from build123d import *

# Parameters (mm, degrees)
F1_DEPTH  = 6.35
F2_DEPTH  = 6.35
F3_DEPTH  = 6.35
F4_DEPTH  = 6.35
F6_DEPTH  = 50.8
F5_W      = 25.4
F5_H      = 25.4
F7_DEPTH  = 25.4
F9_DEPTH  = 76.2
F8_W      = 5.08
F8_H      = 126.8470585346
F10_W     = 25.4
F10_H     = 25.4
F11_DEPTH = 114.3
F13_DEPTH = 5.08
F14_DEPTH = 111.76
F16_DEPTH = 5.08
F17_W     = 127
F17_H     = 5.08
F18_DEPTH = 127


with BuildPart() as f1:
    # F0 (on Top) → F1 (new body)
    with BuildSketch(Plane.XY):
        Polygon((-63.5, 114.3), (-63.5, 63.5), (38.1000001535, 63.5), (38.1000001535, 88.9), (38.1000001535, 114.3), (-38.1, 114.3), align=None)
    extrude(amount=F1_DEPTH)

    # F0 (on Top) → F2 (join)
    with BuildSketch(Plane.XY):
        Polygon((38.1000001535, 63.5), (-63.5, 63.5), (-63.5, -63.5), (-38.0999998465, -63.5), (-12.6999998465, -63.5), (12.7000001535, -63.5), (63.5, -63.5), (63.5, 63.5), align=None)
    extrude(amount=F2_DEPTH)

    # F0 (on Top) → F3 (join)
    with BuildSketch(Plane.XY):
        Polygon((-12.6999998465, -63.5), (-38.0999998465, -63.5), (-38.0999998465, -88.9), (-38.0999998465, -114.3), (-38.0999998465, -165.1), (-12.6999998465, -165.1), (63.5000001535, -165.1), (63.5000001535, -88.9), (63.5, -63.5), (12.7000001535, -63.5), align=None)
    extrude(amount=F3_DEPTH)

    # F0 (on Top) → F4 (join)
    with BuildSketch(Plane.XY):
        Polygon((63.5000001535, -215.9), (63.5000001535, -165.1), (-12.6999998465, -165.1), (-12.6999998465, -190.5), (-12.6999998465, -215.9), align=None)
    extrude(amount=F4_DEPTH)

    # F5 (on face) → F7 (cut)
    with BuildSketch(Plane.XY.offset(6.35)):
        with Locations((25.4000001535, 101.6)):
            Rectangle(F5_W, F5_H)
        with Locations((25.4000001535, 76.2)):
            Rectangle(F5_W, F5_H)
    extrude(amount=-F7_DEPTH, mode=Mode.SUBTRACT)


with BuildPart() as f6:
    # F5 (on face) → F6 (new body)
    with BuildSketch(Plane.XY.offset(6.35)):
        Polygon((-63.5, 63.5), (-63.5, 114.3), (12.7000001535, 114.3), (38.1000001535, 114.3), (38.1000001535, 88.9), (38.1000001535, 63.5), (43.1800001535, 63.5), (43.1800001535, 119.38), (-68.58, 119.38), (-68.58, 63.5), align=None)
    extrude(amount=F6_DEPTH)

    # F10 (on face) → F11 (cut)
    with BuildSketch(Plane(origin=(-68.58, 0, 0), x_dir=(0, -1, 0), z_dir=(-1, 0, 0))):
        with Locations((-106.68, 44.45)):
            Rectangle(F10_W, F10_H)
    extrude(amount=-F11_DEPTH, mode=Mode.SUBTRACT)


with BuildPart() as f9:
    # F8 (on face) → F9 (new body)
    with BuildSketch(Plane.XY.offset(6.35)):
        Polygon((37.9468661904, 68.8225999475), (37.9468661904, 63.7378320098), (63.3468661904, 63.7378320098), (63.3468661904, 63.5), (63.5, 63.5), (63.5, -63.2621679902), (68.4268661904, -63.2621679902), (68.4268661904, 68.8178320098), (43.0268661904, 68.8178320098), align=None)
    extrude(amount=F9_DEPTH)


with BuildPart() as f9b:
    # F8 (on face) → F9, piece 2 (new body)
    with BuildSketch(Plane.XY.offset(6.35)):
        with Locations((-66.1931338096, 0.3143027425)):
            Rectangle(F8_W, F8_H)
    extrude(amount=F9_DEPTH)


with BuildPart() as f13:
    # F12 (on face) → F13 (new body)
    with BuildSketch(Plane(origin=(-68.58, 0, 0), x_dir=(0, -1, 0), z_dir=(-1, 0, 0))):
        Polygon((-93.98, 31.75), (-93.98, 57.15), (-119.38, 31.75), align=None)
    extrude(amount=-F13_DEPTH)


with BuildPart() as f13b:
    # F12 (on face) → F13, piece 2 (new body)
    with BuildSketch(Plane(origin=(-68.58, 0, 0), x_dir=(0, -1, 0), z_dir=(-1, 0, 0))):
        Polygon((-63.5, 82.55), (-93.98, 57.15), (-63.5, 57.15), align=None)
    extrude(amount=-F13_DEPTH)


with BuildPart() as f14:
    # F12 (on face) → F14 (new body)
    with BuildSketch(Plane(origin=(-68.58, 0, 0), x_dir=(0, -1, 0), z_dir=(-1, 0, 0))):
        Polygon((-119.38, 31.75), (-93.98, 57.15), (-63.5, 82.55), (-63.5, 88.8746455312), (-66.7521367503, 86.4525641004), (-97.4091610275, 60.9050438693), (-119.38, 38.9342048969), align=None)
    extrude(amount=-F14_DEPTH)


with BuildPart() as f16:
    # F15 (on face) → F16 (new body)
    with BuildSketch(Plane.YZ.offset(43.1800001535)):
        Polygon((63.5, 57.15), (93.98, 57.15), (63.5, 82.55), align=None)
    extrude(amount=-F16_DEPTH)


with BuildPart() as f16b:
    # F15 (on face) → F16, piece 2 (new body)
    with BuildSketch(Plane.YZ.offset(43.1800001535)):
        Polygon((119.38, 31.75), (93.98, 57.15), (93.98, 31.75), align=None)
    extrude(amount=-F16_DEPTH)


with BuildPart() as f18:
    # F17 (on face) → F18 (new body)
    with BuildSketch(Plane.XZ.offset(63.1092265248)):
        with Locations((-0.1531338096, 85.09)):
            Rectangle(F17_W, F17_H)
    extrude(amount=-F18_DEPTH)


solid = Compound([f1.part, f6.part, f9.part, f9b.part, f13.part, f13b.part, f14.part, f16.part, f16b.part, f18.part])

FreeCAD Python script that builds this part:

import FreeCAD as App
import Part
import Sketcher
from FreeCAD import Vector
Q = App.Units.Quantity

doc = App.newDocument("Part")
params = doc.addObject("Spreadsheet::Sheet", "Params")
for row, (alias, value) in enumerate([
    ("sketch1_width", "4 in"),
    ("sketch1_height", "2 in"),
    ("pad1_length", "0.25 in"),
    ("sketch2_width", "5 in"),
    ("pad2_length", "0.25 in"),
    ("sketch3_width", "4 in"),
    ("sketch3_height", "3 in"),
    ("pad3_length", "0.25 in"),
    ("sketch4_width", "3 in"),
    ("sketch4_height", "2 in"),
    ("pad4_length", "0.25 in"),
    ("sketch5_width", "1 in"),
    ("sketch5_height", "2 in"),
    ("pocket1_length", "1 in"),
    ("sketch6_width", "4 in"),
    ("sketch6_height", "2 in"),
    ("sketch6_width2", "0.2 in"),
    ("sketch6_height2", "2.2 in"),
    ("pad5_length", "2 in"),
    ("sketch7_width", "1 in"),
    ("pocket2_length", "4.5 in"),
    ("sketch8_width", "1 in"),
    ("sketch8_height", "5.2 in"),
    ("sketch8_length", "0.2000001 in"),
    ("pad6_length", "3 in"),
    ("sketch9_width", "0.2 in"),
    ("pad7_length", "3 in"),
    ("sketch10_width", "1 in"),
    ("pad8_length", "0.2 in"),
    ("sketch11_height", "1 in"),
    ("sketch11_width", "1.2 in"),
    ("pad9_length", "0.2 in"),
    ("pad10_length", "4.4 in"),
    ("sketch13_height", "1 in"),
    ("sketch13_width", "1.2 in"),
    ("pad11_length", "0.2 in"),
    ("sketch14_width", "1 in"),
    ("pad12_length", "0.2 in"),
    ("sketch15_width", "5 in"),
    ("sketch15_height", "0.2 in"),
    ("pad13_length", "5 in"),
], start=1):
    params.set(f"A{row}", alias)
    params.set(f"B{row}", "=" + value)
    params.setAlias(f"B{row}", alias)

body = doc.addObject("PartDesign::Body", "Body")

sketch1 = doc.addObject("Sketcher::SketchObject", "Sketch")
body.addObject(sketch1)
sketch1.AttachmentSupport = (doc.XY_Plane, [""])
sketch1.MapMode = "FlatFace"
sketch1.addGeometry(Part.LineSegment(Vector(-64, 114, 0), Vector(-64, 64, 0)), False)
sketch1.addGeometry(Part.LineSegment(Vector(-64, 64, 0), Vector(38, 64, 0)), False)
sketch1.addGeometry(Part.LineSegment(Vector(38, 64, 0), Vector(38, 114, 0)), False)
sketch1.addGeometry(Part.LineSegment(Vector(38, 114, 0), Vector(-64, 114, 0)), False)
sketch1.addConstraint(Sketcher.Constraint("Coincident", 0, 2, 1, 1))
sketch1.addConstraint(Sketcher.Constraint("Coincident", 1, 2, 2, 1))
sketch1.addConstraint(Sketcher.Constraint("Coincident", 2, 2, 3, 1))
sketch1.addConstraint(Sketcher.Constraint("Coincident", 3, 2, 0, 1))
sketch1.addConstraint(Sketcher.Constraint("Vertical", 0))
sketch1.addConstraint(Sketcher.Constraint("Horizontal", 1))
sketch1.addConstraint(Sketcher.Constraint("Vertical", 2))
sketch1.addConstraint(Sketcher.Constraint("Horizontal", 3))
sketch1.addConstraint(Sketcher.Constraint("DistanceX", 1, 1, 1, 2, Q("4 in")))
sketch1.addConstraint(Sketcher.Constraint("DistanceY", 0, 2, 0, 1, Q("2 in")))
sketch1.addConstraint(Sketcher.Constraint("DistanceX", 0, 2, -1, 1, Q("2.5 in")))
sketch1.addConstraint(Sketcher.Constraint("DistanceY", -1, 1, 0, 2, Q("2.5 in")))
sketch1.setExpression("Constraints[8]", "Params.sketch1_width")
sketch1.setExpression("Constraints[9]", "Params.sketch1_height")
pad1 = doc.addObject("PartDesign::Pad", "Pad")
body.addObject(pad1)
pad1.Profile = sketch1
pad1.setExpression("Length", "Params.pad1_length")

sketch2 = doc.addObject("Sketcher::SketchObject", "Sketch001")
body.addObject(sketch2)
sketch2.AttachmentSupport = (doc.XY_Plane, [""])
sketch2.MapMode = "FlatFace"
sketch2.addGeometry(Part.LineSegment(Vector(-64, 64, 0), Vector(-64, -64, 0)), False)
sketch2.addGeometry(Part.LineSegment(Vector(-64, -64, 0), Vector(64, -64, 0)), False)
sketch2.addGeometry(Part.LineSegment(Vector(64, -64, 0), Vector(64, 64, 0)), False)
sketch2.addGeometry(Part.LineSegment(Vector(64, 64, 0), Vector(-64, 64, 0)), False)
sketch2.addConstraint(Sketcher.Constraint("Coincident", 0, 2, 1, 1))
sketch2.addConstraint(Sketcher.Constraint("Coincident", 1, 2, 2, 1))
sketch2.addConstraint(Sketcher.Constraint("Coincident", 2, 2, 3, 1))
sketch2.addConstraint(Sketcher.Constraint("Coincident", 3, 2, 0, 1))
sketch2.addConstraint(Sketcher.Constraint("Vertical", 0))
sketch2.addConstraint(Sketcher.Constraint("Horizontal", 1))
sketch2.addConstraint(Sketcher.Constraint("Vertical", 2))
sketch2.addConstraint(Sketcher.Constraint("Horizontal", 3))
sketch2.addConstraint(Sketcher.Constraint("Symmetric", 0, 2, 2, 2, -1, 1))
sketch2.addConstraint(Sketcher.Constraint("Equal", 3, 0))
sketch2.addConstraint(Sketcher.Constraint("DistanceX", 1, 1, 1, 2, Q("5 in")))
sketch2.setExpression("Constraints[10]", "Params.sketch2_width")
pad2 = doc.addObject("PartDesign::Pad", "Pad001")
body.addObject(pad2)
pad2.Profile = sketch2
pad2.setExpression("Length", "Params.pad2_length")

sketch3 = doc.addObject("Sketcher::SketchObject", "Sketch002")
body.addObject(sketch3)
sketch3.AttachmentSupport = (doc.XY_Plane, [""])
sketch3.MapMode = "FlatFace"
sketch3.addGeometry(Part.LineSegment(Vector(-38, -64, 0), Vector(-38, -165, 0)), False)
sketch3.addGeometry(Part.LineSegment(Vector(-38, -165, 0), Vector(64, -165, 0)), False)
sketch3.addGeometry(Part.LineSegment(Vector(64, -165, 0), Vector(64, -89, 0)), False)
sketch3.addGeometry(Part.LineSegment(Vector(64, -89, 0), Vector(64, -64, 0)), False)
sketch3.addGeometry(Part.LineSegment(Vector(64, -64, 0), Vector(-38, -64, 0)), False)
sketch3.addConstraint(Sketcher.Constraint("Coincident", 0, 2, 1, 1))
sketch3.addConstraint(Sketcher.Constraint("Coincident", 1, 2, 2, 1))
sketch3.addConstraint(Sketcher.Constraint("Coincident", 2, 2, 3, 1))
sketch3.addConstraint(Sketcher.Constraint("Coincident", 3, 2, 4, 1))
sketch3.addConstraint(Sketcher.Constraint("Coincident", 4, 2, 0, 1))
sketch3.addConstraint(Sketcher.Constraint("Vertical", 0))
sketch3.addConstraint(Sketcher.Constraint("Horizontal", 1))
sketch3.addConstraint(Sketcher.Constraint("Vertical", 2))
sketch3.addConstraint(Sketcher.Constraint("Vertical", 3))
sketch3.addConstraint(Sketcher.Constraint("Horizontal", 4))
sketch3.addConstraint(Sketcher.Constraint("Equal", 4, 0))
sketch3.addConstraint(Sketcher.Constraint("DistanceX", 1, 1, 1, 2, Q("4 in")))
sketch3.addConstraint(Sketcher.Constraint("DistanceY", 2, 1, 2, 2, Q("3 in")))
sketch3.addConstraint(Sketcher.Constraint("DistanceX", 0, 2, -1, 1, Q("1.5 in")))
sketch3.addConstraint(Sketcher.Constraint("DistanceY", 0, 2, -1, 1, Q("6.5 in")))
sketch3.setExpression("Constraints[11]", "Params.sketch3_width")
sketch3.setExpression("Constraints[12]", "Params.sketch3_height")
pad3 = doc.addObject("PartDesign::Pad", "Pad002")
body.addObject(pad3)
pad3.Profile = sketch3
pad3.setExpression("Length", "Params.pad3_length")

sketch4 = doc.addObject("Sketcher::SketchObject", "Sketch003")
body.addObject(sketch4)
sketch4.AttachmentSupport = (doc.XY_Plane, [""])
sketch4.MapMode = "FlatFace"
sketch4.addGeometry(Part.LineSegment(Vector(64, -216, 0), Vector(64, -165, 0)), False)
sketch4.addGeometry(Part.LineSegment(Vector(64, -165, 0), Vector(-13, -165, 0)), False)
sketch4.addGeometry(Part.LineSegment(Vector(-13, -165, 0), Vector(-13, -216, 0)), False)
sketch4.addGeometry(Part.LineSegment(Vector(-13, -216, 0), Vector(64, -216, 0)), False)
sketch4.addConstraint(Sketcher.Constraint("Coincident", 0, 2, 1, 1))
sketch4.addConstraint(Sketcher.Constraint("Coincident", 1, 2, 2, 1))
sketch4.addConstraint(Sketcher.Constraint("Coincident", 2, 2, 3, 1))
sketch4.addConstraint(Sketcher.Constraint("Coincident", 3, 2, 0, 1))
sketch4.addConstraint(Sketcher.Constraint("Vertical", 0))
sketch4.addConstraint(Sketcher.Constraint("Horizontal", 1))
sketch4.addConstraint(Sketcher.Constraint("Vertical", 2))
sketch4.addConstraint(Sketcher.Constraint("Horizontal", 3))
sketch4.addConstraint(Sketcher.Constraint("DistanceX", 1, 2, 1, 1, Q("3 in")))
sketch4.addConstraint(Sketcher.Constraint("DistanceY", 0, 1, 0, 2, Q("2 in")))
sketch4.addConstraint(Sketcher.Constraint("DistanceX", -1, 1, 0, 2, Q("2.5 in")))
sketch4.addConstraint(Sketcher.Constraint("DistanceY", 0, 2, -1, 1, Q("6.5 in")))
sketch4.setExpression("Constraints[8]", "Params.sketch4_width")
sketch4.setExpression("Constraints[9]", "Params.sketch4_height")
pad4 = doc.addObject("PartDesign::Pad", "Pad003")
body.addObject(pad4)
pad4.Profile = sketch4
pad4.setExpression("Length", "Params.pad4_length")

sketch5 = doc.addObject("Sketcher::SketchObject", "Sketch004")
body.addObject(sketch5)
sketch5.AttachmentSupport = (doc.XY_Plane, [""])
sketch5.MapMode = "FlatFace"
sketch5.AttachmentOffset = App.Placement(Vector(0, 0, 0.25 * 25.4), App.Rotation())
sketch5.addGeometry(Part.LineSegment(Vector(13, 114, 0), Vector(13, 64, 0)), False)
sketch5.addGeometry(Part.LineSegment(Vector(13, 64, 0), Vector(38, 64, 0)), False)
sketch5.addGeometry(Part.LineSegment(Vector(38, 64, 0), Vector(38, 114, 0)), False)
sketch5.addGeometry(Part.LineSegment(Vector(38, 114, 0), Vector(13, 114, 0)), False)
sketch5.addConstraint(Sketcher.Constraint("Coincident", 0, 2, 1, 1))
sketch5.addConstraint(Sketcher.Constraint("Coincident", 1, 2, 2, 1))
sketch5.addConstraint(Sketcher.Constraint("Coincident", 2, 2, 3, 1))
sketch5.addConstraint(Sketcher.Constraint("Coincident", 3, 2, 0, 1))
sketch5.addConstraint(Sketcher.Constraint("Vertical", 0))
sketch5.addConstraint(Sketcher.Constraint("Horizontal", 1))
sketch5.addConstraint(Sketcher.Constraint("Vertical", 2))
sketch5.addConstraint(Sketcher.Constraint("Horizontal", 3))
sketch5.addConstraint(Sketcher.Constraint("DistanceX", 1, 1, 1, 2, Q("1 in")))
sketch5.addConstraint(Sketcher.Constraint("DistanceY", 0, 2, 0, 1, Q("2 in")))
sketch5.addConstraint(Sketcher.Constraint("DistanceX", -1, 1, 0, 2, Q("0.5 in")))
sketch5.addConstraint(Sketcher.Constraint("DistanceY", -1, 1, 0, 2, Q("2.5 in")))
sketch5.setExpression("Constraints[8]", "Params.sketch5_width")
sketch5.setExpression("Constraints[9]", "Params.sketch5_height")
pocket1 = doc.addObject("PartDesign::Pocket", "Pocket")
body.addObject(pocket1)
pocket1.Profile = sketch5
pocket1.setExpression("Length", "Params.pocket1_length")
body2 = doc.addObject("PartDesign::Body", "Body001")

sketch6 = doc.addObject("Sketcher::SketchObject", "Sketch005")
body2.addObject(sketch6)
sketch6.AttachmentSupport = (doc.getObject("XY_Plane001"), [""])
sketch6.MapMode = "FlatFace"
sketch6.AttachmentOffset = App.Placement(Vector(0, 0, 0.25 * 25.4), App.Rotation())
sketch6.addGeometry(Part.LineSegment(Vector(-64, 64, 0), Vector(-64, 114, 0)), False)
sketch6.addGeometry(Part.LineSegment(Vector(-64, 114, 0), Vector(38, 114, 0)), False)
sketch6.addGeometry(Part.LineSegment(Vector(38, 114, 0), Vector(38, 64, 0)), False)
sketch6.addGeometry(Part.LineSegment(Vector(38, 64, 0), Vector(43, 64, 0)), False)
sketch6.addGeometry(Part.LineSegment(Vector(43, 64, 0), Vector(43, 119, 0)), False)
sketch6.addGeometry(Part.LineSegment(Vector(43, 119, 0), Vector(-69, 119, 0)), False)
sketch6.addGeometry(Part.LineSegment(Vector(-69, 119, 0), Vector(-69, 64, 0)), False)
sketch6.addGeometry(Part.LineSegment(Vector(-69, 64, 0), Vector(-64, 64, 0)), False)
sketch6.addConstraint(Sketcher.Constraint("Coincident", 0, 2, 1, 1))
sketch6.addConstraint(Sketcher.Constraint("Coincident", 1, 2, 2, 1))
sketch6.addConstraint(Sketcher.Constraint("Coincident", 2, 2, 3, 1))
sketch6.addConstraint(Sketcher.Constraint("Coincident", 3, 2, 4, 1))
sketch6.addConstraint(Sketcher.Constraint("Coincident", 4, 2, 5, 1))
sketch6.addConstraint(Sketcher.Constraint("Coincident", 5, 2, 6, 1))
sketch6.addConstraint(Sketcher.Constraint("Coincident", 6, 2, 7, 1))
sketch6.addConstraint(Sketcher.Constraint("Coincident", 7, 2, 0, 1))
sketch6.addConstraint(Sketcher.Constraint("Vertical", 0))
sketch6.addConstraint(Sketcher.Constraint("Horizontal", 1))
sketch6.addConstraint(Sketcher.Constraint("Vertical", 2))
sketch6.addConstraint(Sketcher.Constraint("Horizontal", 3))
sketch6.addConstraint(Sketcher.Constraint("Vertical", 4))
sketch6.addConstraint(Sketcher.Constraint("Horizontal", 5))
sketch6.addConstraint(Sketcher.Constraint("Vertical", 6))
sketch6.addConstraint(Sketcher.Constraint("Horizontal", 7))
sketch6.addConstraint(Sketcher.Constraint("Horizontal", 3, 2, 6, 2))
sketch6.addConstraint(Sketcher.Constraint("Equal", 3, 7))
sketch6.addConstraint(Sketcher.Constraint("DistanceX", 1, 1, 1, 2, Q("4 in")))
sketch6.addConstraint(Sketcher.Constraint("DistanceY", 0, 1, 0, 2, Q("2 in")))
sketch6.addConstraint(Sketcher.Constraint("DistanceX", 3, 1, 3, 2, Q("0.2 in")))
sketch6.addConstraint(Sketcher.Constraint("DistanceY", 4, 1, 4, 2, Q("2.2 in")))
sketch6.addConstraint(Sketcher.Constraint("DistanceX", 0, 2, -1, 1, Q("2.5 in")))
sketch6.addConstraint(Sketcher.Constraint("DistanceY", -1, 1, 0, 2, Q("4.5 in")))
sketch6.setExpression("Constraints[18]", "Params.sketch6_width")
sketch6.setExpression("Constraints[19]", "Params.sketch6_height")
sketch6.setExpression("Constraints[20]", "Params.sketch6_width2")
sketch6.setExpression("Constraints[21]", "Params.sketch6_height2")
pad5 = doc.addObject("PartDesign::Pad", "Pad004")
body2.addObject(pad5)
pad5.Profile = sketch6
pad5.setExpression("Length", "Params.pad5_length")

sketch7 = doc.addObject("Sketcher::SketchObject", "Sketch006")
body2.addObject(sketch7)
sketch7.AttachmentSupport = (doc.getObject("YZ_Plane001"), [""])
sketch7.MapMode = "FlatFace"
sketch7.AttachmentOffset = App.Placement(Vector(0, 0, -2.7 * 25.4), App.Rotation())
sketch7.addGeometry(Part.LineSegment(Vector(119, 57, 0), Vector(119, 32, 0)), False)
sketch7.addGeometry(Part.LineSegment(Vector(119, 32, 0), Vector(94, 32, 0)), False)
sketch7.addGeometry(Part.LineSegment(Vector(94, 32, 0), Vector(94, 57, 0)), False)
sketch7.addGeometry(Part.LineSegment(Vector(94, 57, 0), Vector(119, 57, 0)), False)
sketch7.addConstraint(Sketcher.Constraint("Coincident", 0, 2, 1, 1))
sketch7.addConstraint(Sketcher.Constraint("Coincident", 1, 2, 2, 1))
sketch7.addConstraint(Sketcher.Constraint("Coincident", 2, 2, 3, 1))
sketch7.addConstraint(Sketcher.Constraint("Coincident", 3, 2, 0, 1))
sketch7.addConstraint(Sketcher.Constraint("Vertical", 0))
sketch7.addConstraint(Sketcher.Constraint("Horizontal", 1))
sketch7.addConstraint(Sketcher.Constraint("Vertical", 2))
sketch7.addConstraint(Sketcher.Constraint("Horizontal", 3))
sketch7.addConstraint(Sketcher.Constraint("Equal", 3, 0))
sketch7.addConstraint(Sketcher.Constraint("DistanceX", 1, 2, 1, 1, Q("1 in")))
sketch7.addConstraint(Sketcher.Constraint("DistanceX", -1, 1, 0, 2, Q("4.7 in")))
sketch7.addConstraint(Sketcher.Constraint("DistanceY", -1, 1, 0, 2, Q("1.25 in")))
sketch7.setExpression("Constraints[9]", "Params.sketch7_width")
pocket2 = doc.addObject("PartDesign::Pocket", "Pocket001")
body2.addObject(pocket2)
pocket2.Profile = sketch7
pocket2.setExpression("Length", "Params.pocket2_length")
pocket2.Reversed = True
body3 = doc.addObject("PartDesign::Body", "Body002")

sketch8 = doc.addObject("Sketcher::SketchObject", "Sketch007")
body3.addObject(sketch8)
sketch8.AttachmentSupport = (doc.getObject("XY_Plane002"), [""])
sketch8.MapMode = "FlatFace"
sketch8.AttachmentOffset = App.Placement(Vector(0, 0, 0.25 * 25.4), App.Rotation())
sketch8.addGeometry(Part.LineSegment(Vector(37.95, 68.82, 0), Vector(37.95, 63.74, 0)), False)
sketch8.addGeometry(Part.LineSegment(Vector(37.95, 63.74, 0), Vector(63.35, 63.74, 0)), False)
sketch8.addGeometry(Part.LineSegment(Vector(63.35, 63.74, 0), Vector(63.35, 63.5, 0)), False)
sketch8.addGeometry(Part.LineSegment(Vector(63.35, 63.5, 0), Vector(63.5, 63.5, 0)), False)
sketch8.addGeometry(Part.LineSegment(Vector(63.5, 63.5, 0), Vector(63.5, -63.26, 0)), False)
sketch8.addGeometry(Part.LineSegment(Vector(63.5, -63.26, 0), Vector(68.43, -63.26, 0)), False)
sketch8.addGeometry(Part.LineSegment(Vector(68.43, -63.26, 0), Vector(68.43, 68.82, 0)), False)
sketch8.addGeometry(Part.LineSegment(Vector(68.43, 68.82, 0), Vector(43.03, 68.82, 0)), False)
sketch8.addGeometry(Part.LineSegment(Vector(43.03, 68.82, 0), Vector(37.95, 68.82, 0)), False)
sketch8.addConstraint(Sketcher.Constraint("Coincident", 0, 2, 1, 1))
sketch8.addConstraint(Sketcher.Constraint("Coincident", 1, 2, 2, 1))
sketch8.addConstraint(Sketcher.Constraint("Coincident", 2, 2, 3, 1))
sketch8.addConstraint(Sketcher.Constraint("Coincident", 3, 2, 4, 1))
sketch8.addConstraint(Sketcher.Constraint("Coincident", 4, 2, 5, 1))
sketch8.addConstraint(Sketcher.Constraint("Coincident", 5, 2, 6, 1))
sketch8.addConstraint(Sketcher.Constraint("Coincident", 6, 2, 7, 1))
sketch8.addConstraint(Sketcher.Constraint("Coincident", 7, 2, 8, 1))
sketch8.addConstraint(Sketcher.Constraint("Coincident", 8, 2, 0, 1))
sketch8.addConstraint(Sketcher.Constraint("Vertical", 0))
sketch8.addConstraint(Sketcher.Constraint("Horizontal", 1))
sketch8.addConstraint(Sketcher.Constraint("Vertical", 2))
sketch8.addConstraint(Sketcher.Constraint("Horizontal", 3))
sketch8.addConstraint(Sketcher.Constraint("Vertical", 4))
sketch8.addConstraint(Sketcher.Constraint("Horizontal", 5))
sketch8.addConstraint(Sketcher.Constraint("Vertical", 6))
sketch8.addConstraint(Sketcher.Constraint("Horizontal", 7))
sketch8.addConstraint(Sketcher.Constraint("Equal", 1, 7))
sketch8.addConstraint(Sketcher.Constraint("DistanceX", 1, 1, 1, 2, Q("1 in")))
sketch8.addConstraint(Sketcher.Constraint("DistanceY", 6, 1, 6, 2, Q("5.2 in")))
sketch8.addConstraint(Sketcher.Constraint("DistanceY", 4, 2, 1, 2, Q("5 in")))
sketch8.addConstraint(Sketcher.Constraint("Distance", 8, Q("0.2000001 in")))
sketch8.addConstraint(Sketcher.Constraint("DistanceY", -1, 1, 2, 2, Q("2.5 in")))
sketch8.addConstraint(Sketcher.Constraint("DistanceX", -1, 1, 3, 2, Q("2.5 in")))
sketch8.addConstraint(Sketcher.Constraint("DistanceY", -1, 1, 8, 2, Q("68.8226 mm")))
sketch8.addConstraint(Sketcher.Constraint("DistanceX", 3, 1, 3, 2, Q("0.153134 mm")))
sketch8.addConstraint(Sketcher.Constraint("DistanceY", 0, 2, 0, 1, Q("5.084768 mm")))
sketch8.setExpression("Constraints[18]", "Params.sketch8_width")
sketch8.setExpression("Constraints[19]", "Params.sketch8_height")
sketch8.setExpression("Constraints[21]", "Params.sketch8_length")
pad6 = doc.addObject("PartDesign::Pad", "Pad005")
body3.addObject(pad6)
pad6.Profile = sketch8
pad6.setExpression("Length", "Params.pad6_length")
body4 = doc.addObject("PartDesign::Body", "Body003")

sketch9 = doc.addObject("Sketcher::SketchObject", "Sketch008")
body4.addObject(sketch9)
sketch9.AttachmentSupport = (doc.getObject("XY_Plane003"), [""])
sketch9.MapMode = "FlatFace"
sketch9.AttachmentOffset = App.Placement(Vector(0, 0, 0.25 * 25.4), App.Rotation())
sketch9.addGeometry(Part.LineSegment(Vector(-69, 64, 0), Vector(-69, -63, 0)), False)
sketch9.addGeometry(Part.LineSegment(Vector(-69, -63, 0), Vector(-64, -63, 0)), False)
sketch9.addGeometry(Part.LineSegment(Vector(-64, -63, 0), Vector(-64, 64, 0)), False)
sketch9.addGeometry(Part.LineSegment(Vector(-64, 64, 0), Vector(-69, 64, 0)), False)
sketch9.addConstraint(Sketcher.Constraint("Coincident", 0, 2, 1, 1))
sketch9.addConstraint(Sketcher.Constraint("Coincident", 1, 2, 2, 1))
sketch9.addConstraint(Sketcher.Constraint("Coincident", 2, 2, 3, 1))
sketch9.addConstraint(Sketcher.Constraint("Coincident", 3, 2, 0, 1))
sketch9.addConstraint(Sketcher.Constraint("Vertical", 0))
sketch9.addConstraint(Sketcher.Constraint("Horizontal", 1))
sketch9.addConstraint(Sketcher.Constraint("Vertical", 2))
sketch9.addConstraint(Sketcher.Constraint("Horizontal", 3))
sketch9.addConstraint(Sketcher.Constraint("DistanceX", 1, 1, 1, 2, Q("0.2 in")))
sketch9.addConstraint(Sketcher.Constraint("DistanceY", 0, 2, 0, 1, Q("126.847059 mm")))
sketch9.addConstraint(Sketcher.Constraint("DistanceX", 0, 2, -1, 1, Q("68.733134 mm")))
sketch9.addConstraint(Sketcher.Constraint("DistanceY", 0, 2, -1, 1, Q("63.109227 mm")))
sketch9.setExpression("Constraints[8]", "Params.sketch9_width")
pad7 = doc.addObject("PartDesign::Pad", "Pad006")
body4.addObject(pad7)
pad7.Profile = sketch9
pad7.setExpression("Length", "Params.pad7_length")
body5 = doc.addObject("PartDesign::Body", "Body004")

sketch10 = doc.addObject("Sketcher::SketchObject", "Sketch009")
body5.addObject(sketch10)
sketch10.AttachmentSupport = (doc.getObject("YZ_Plane004"), [""])
sketch10.MapMode = "FlatFace"
sketch10.AttachmentOffset = App.Placement(Vector(0, 0, -2.7 * 25.4), App.Rotation())
sketch10.addGeometry(Part.LineSegment(Vector(94, 32, 0), Vector(94, 57, 0)), False)
sketch10.addGeometry(Part.LineSegment(Vector(94, 57, 0), Vector(119, 32, 0)), False)
sketch10.addGeometry(Part.LineSegment(Vector(119, 32, 0), Vector(94, 32, 0)), False)
sketch10.addConstraint(Sketcher.Constraint("Coincident", 0, 2, 1, 1))
sketch10.addConstraint(Sketcher.Constraint("Coincident", 1, 2, 2, 1))
sketch10.addConstraint(Sketcher.Constraint("Coincident", 2, 2, 0, 1))
sketch10.addConstraint(Sketcher.Constraint("Vertical", 0))
sketch10.addConstraint(Sketcher.Constraint("Horizontal", 2))
sketch10.addConstraint(Sketcher.Constraint("Equal", 2, 0))
sketch10.addConstraint(Sketcher.Constraint("DistanceX", 2, 2, 2, 1, Q("1 in")))
sketch10.addConstraint(Sketcher.Constraint("DistanceX", -1, 1, 0, 2, Q("3.7 in")))
sketch10.addConstraint(Sketcher.Constraint("DistanceY", -1, 1, 0, 2, Q("2.25 in")))
sketch10.setExpression("Constraints[6]", "Params.sketch10_width")
pad8 = doc.addObject("PartDesign::Pad", "Pad007")
body5.addObject(pad8)
pad8.Profile = sketch10
pad8.setExpression("Length", "Params.pad8_length")
body6 = doc.addObject("PartDesign::Body", "Body005")

sketch11 = doc.addObject("Sketcher::SketchObject", "Sketch010")
body6.addObject(sketch11)
sketch11.AttachmentSupport = (doc.getObject("YZ_Plane005"), [""])
sketch11.MapMode = "FlatFace"
sketch11.AttachmentOffset = App.Placement(Vector(0, 0, -2.7 * 25.4), App.Rotation())
sketch11.addGeometry(Part.LineSegment(Vector(64, 83, 0), Vector(94, 57, 0)), False)
sketch11.addGeometry(Part.LineSegment(Vector(94, 57, 0), Vector(64, 57, 0)), False)
sketch11.addGeometry(Part.LineSegment(Vector(64, 57, 0), Vector(64, 83, 0)), False)
sketch11.addConstraint(Sketcher.Constraint("Coincident", 0, 2, 1, 1))
sketch11.addConstraint(Sketcher.Constraint("Coincident", 1, 2, 2, 1))
sketch11.addConstraint(Sketcher.Constraint("Coincident", 2, 2, 0, 1))
sketch11.addConstraint(Sketcher.Constraint("Horizontal", 1))
sketch11.addConstraint(Sketcher.Constraint("Vertical", 2))
sketch11.addConstraint(Sketcher.Constraint("DistanceY", 2, 1, 2, 2, Q("1 in")))
sketch11.addConstraint(Sketcher.Constraint("DistanceX", 1, 2, 1, 1, Q("1.2 in")))
sketch11.addConstraint(Sketcher.Constraint("DistanceX", -1, 1, 0, 2, Q("3.7 in")))
sketch11.addConstraint(Sketcher.Constraint("DistanceY", -1, 1, 0, 2, Q("2.25 in")))
sketch11.setExpression("Constraints[5]", "Params.sketch11_height")
sketch11.setExpression("Constraints[6]", "Params.sketch11_width")
pad9 = doc.addObject("PartDesign::Pad", "Pad008")
body6.addObject(pad9)
pad9.Profile = sketch11
pad9.setExpression("Length", "Params.pad9_length")
body7 = doc.addObject("PartDesign::Body", "Body006")

sketch12 = doc.addObject("Sketcher::SketchObject", "Sketch011")
body7.addObject(sketch12)
sketch12.AttachmentSupport = (doc.getObject("YZ_Plane006"), [""])
sketch12.MapMode = "FlatFace"
sketch12.AttachmentOffset = App.Placement(Vector(0, 0, -2.7 * 25.4), App.Rotation())
sketch12.addGeometry(Part.LineSegment(Vector(119.4, 31.8, 0), Vector(94, 57.1, 0)), False)
sketch12.addGeometry(Part.LineSegment(Vector(94, 57.1, 0), Vector(63.5, 82.5, 0)), False)
sketch12.addGeometry(Part.LineSegment(Vector(63.5, 82.5, 0), Vector(63.5, 88.9, 0)), False)
sketch12.addGeometry(Part.LineSegment(Vector(63.5, 88.9, 0), Vector(66.8, 86.5, 0)), False)
sketch12.addGeometry(Part.LineSegment(Vector(66.8, 86.5, 0), Vector(97.4, 60.9, 0)), False)
sketch12.addGeometry(Part.LineSegment(Vector(97.4, 60.9, 0), Vector(119.4, 38.9, 0)), False)
sketch12.addGeometry(Part.LineSegment(Vector(119.4, 38.9, 0), Vector(119.4, 31.8, 0)), False)
sketch12.addConstraint(Sketcher.Constraint("Coincident", 0, 2, 1, 1))
sketch12.addConstraint(Sketcher.Constraint("Coincident", 1, 2, 2, 1))
sketch12.addConstraint(Sketcher.Constraint("Coincident", 2, 2, 3, 1))
sketch12.addConstraint(Sketcher.Constraint("Coincident", 3, 2, 4, 1))
sketch12.addConstraint(Sketcher.Constraint("Coincident", 4, 2, 5, 1))
sketch12.addConstraint(Sketcher.Constraint("Coincident", 5, 2, 6, 1))
sketch12.addConstraint(Sketcher.Constraint("Coincident", 6, 2, 0, 1))
sketch12.addConstraint(Sketcher.Constraint("Vertical", 2))
sketch12.addConstraint(Sketcher.Constraint("Vertical", 6))
sketch12.addConstraint(Sketcher.Constraint("Parallel", 1, 4))
sketch12.addConstraint(Sketcher.Constraint("Parallel", 0, 5))
sketch12.addConstraint(Sketcher.Constraint("Angle", 0, Q("135 deg")))
sketch12.addConstraint(Sketcher.Constraint("DistanceY", 0, 2, 1, 2, Q("1 in")))
sketch12.addConstraint(Sketcher.Constraint("DistanceX", 0, 2, 5, 2, Q("1 in")))
sketch12.addConstraint(Sketcher.Constraint("DistanceX", -1, 1, 0, 2, Q("3.7 in")))
sketch12.addConstraint(Sketcher.Constraint("DistanceX", -1, 1, 1, 2, Q("2.5 in")))
sketch12.addConstraint(Sketcher.Constraint("DistanceY", -1, 1, 0, 2, Q("2.25 in")))
sketch12.addConstraint(Sketcher.Constraint("DistanceY", 4, 2, 2, 2, Q("27.969602 mm")))
sketch12.addConstraint(Sketcher.Constraint("Distance", 3, Q("4.054981 mm")))
sketch12.addConstraint(Sketcher.Constraint("Distance", 5, Q("31.071458 mm")))
sketch12.addConstraint(Sketcher.Constraint("DistanceY", 2, 1, 2, 2, Q("6.324646 mm")))
pad10 = doc.addObject("PartDesign::Pad", "Pad009")
body7.addObject(pad10)
pad10.Profile = sketch12
pad10.setExpression("Length", "Params.pad10_length")
body8 = doc.addObject("PartDesign::Body", "Body007")

sketch13 = doc.addObject("Sketcher::SketchObject", "Sketch012")
body8.addObject(sketch13)
sketch13.AttachmentSupport = (doc.getObject("YZ_Plane007"), [""])
sketch13.MapMode = "FlatFace"
sketch13.AttachmentOffset = App.Placement(Vector(0, 0, 1.7 * 25.4), App.Rotation())
sketch13.addGeometry(Part.LineSegment(Vector(64, 57, 0), Vector(94, 57, 0)), False)
sketch13.addGeometry(Part.LineSegment(Vector(94, 57, 0), Vector(64, 83, 0)), False)
sketch13.addGeometry(Part.LineSegment(Vector(64, 83, 0), Vector(64, 57, 0)), False)
sketch13.addConstraint(Sketcher.Constraint("Coincident", 0, 2, 1, 1))
sketch13.addConstraint(Sketcher.Constraint("Coincident", 1, 2, 2, 1))
sketch13.addConstraint(Sketcher.Constraint("Coincident", 2, 2, 0, 1))
sketch13.addConstraint(Sketcher.Constraint("Horizontal", 0))
sketch13.addConstraint(Sketcher.Constraint("Vertical", 2))
sketch13.addConstraint(Sketcher.Constraint("DistanceY", 2, 2, 2, 1, Q("1 in")))
sketch13.addConstraint(Sketcher.Constraint("DistanceX", 0, 1, 0, 2, Q("1.2 in")))
sketch13.addConstraint(Sketcher.Constraint("DistanceX", -1, 1, 0, 2, Q("3.7 in")))
sketch13.addConstraint(Sketcher.Constraint("DistanceY", -1, 1, 0, 2, Q("2.25 in")))
sketch13.setExpression("Constraints[5]", "Params.sketch13_height")
sketch13.setExpression("Constraints[6]", "Params.sketch13_width")
pad11 = doc.addObject("PartDesign::Pad", "Pad010")
body8.addObject(pad11)
pad11.Profile = sketch13
pad11.setExpression("Length", "Params.pad11_length")
pad11.Reversed = True
body9 = doc.addObject("PartDesign::Body", "Body008")

sketch14 = doc.addObject("Sketcher::SketchObject", "Sketch013")
body9.addObject(sketch14)
sketch14.AttachmentSupport = (doc.getObject("YZ_Plane008"), [""])
sketch14.MapMode = "FlatFace"
sketch14.AttachmentOffset = App.Placement(Vector(0, 0, 1.7 * 25.4), App.Rotation())
sketch14.addGeometry(Part.LineSegment(Vector(119, 32, 0), Vector(94, 57, 0)), False)
sketch14.addGeometry(Part.LineSegment(Vector(94, 57, 0), Vector(94, 32, 0)), False)
sketch14.addGeometry(Part.LineSegment(Vector(94, 32, 0), Vector(119, 32, 0)), False)
sketch14.addConstraint(Sketcher.Constraint("Coincident", 0, 2, 1, 1))
sketch14.addConstraint(Sketcher.Constraint("Coincident", 1, 2, 2, 1))
sketch14.addConstraint(Sketcher.Constraint("Coincident", 2, 2, 0, 1))
sketch14.addConstraint(Sketcher.Constraint("Vertical", 1))
sketch14.addConstraint(Sketcher.Constraint("Horizontal", 2))
sketch14.addConstraint(Sketcher.Constraint("Equal", 2, 1))
sketch14.addConstraint(Sketcher.Constraint("DistanceX", 2, 1, 2, 2, Q("1 in")))
sketch14.addConstraint(Sketcher.Constraint("DistanceX", -1, 1, 0, 2, Q("3.7 in")))
sketch14.addConstraint(Sketcher.Constraint("DistanceY", -1, 1, 0, 2, Q("2.25 in")))
sketch14.setExpression("Constraints[6]", "Params.sketch14_width")
pad12 = doc.addObject("PartDesign::Pad", "Pad011")
body9.addObject(pad12)
pad12.Profile = sketch14
pad12.setExpression("Length", "Params.pad12_length")
pad12.Reversed = True
body10 = doc.addObject("PartDesign::Body", "Body009")

sketch15 = doc.addObject("Sketcher::SketchObject", "Sketch014")
body10.addObject(sketch15)
sketch15.AttachmentSupport = (doc.getObject("XZ_Plane009"), [""])
sketch15.MapMode = "FlatFace"
sketch15.AttachmentOffset = App.Placement(Vector(0, 0, 63.109227), App.Rotation())
sketch15.addGeometry(Part.LineSegment(Vector(-64, 88, 0), Vector(-64, 83, 0)), False)
sketch15.addGeometry(Part.LineSegment(Vector(-64, 83, 0), Vector(63, 83, 0)), False)
sketch15.addGeometry(Part.LineSegment(Vector(63, 83, 0), Vector(63, 88, 0)), False)
sketch15.addGeometry(Part.LineSegment(Vector(63, 88, 0), Vector(-64, 88, 0)), False)
sketch15.addConstraint(Sketcher.Constraint("Coincident", 0, 2, 1, 1))
sketch15.addConstraint(Sketcher.Constraint("Coincident", 1, 2, 2, 1))
sketch15.addConstraint(Sketcher.Constraint("Coincident", 2, 2, 3, 1))
sketch15.addConstraint(Sketcher.Constraint("Coincident", 3, 2, 0, 1))
sketch15.addConstraint(Sketcher.Constraint("Vertical", 0))
sketch15.addConstraint(Sketcher.Constraint("Horizontal", 1))
sketch15.addConstraint(Sketcher.Constraint("Vertical", 2))
sketch15.addConstraint(Sketcher.Constraint("Horizontal", 3))
sketch15.addConstraint(Sketcher.Constraint("DistanceX", 1, 1, 1, 2, Q("5 in")))
sketch15.addConstraint(Sketcher.Constraint("DistanceY", 0, 2, 0, 1, Q("0.2 in")))
sketch15.addConstraint(Sketcher.Constraint("DistanceY", -1, 1, 0, 2, Q("3.25 in")))
sketch15.addConstraint(Sketcher.Constraint("DistanceX", 0, 2, -1, 1, Q("63.653134 mm")))
sketch15.setExpression("Constraints[8]", "Params.sketch15_width")
sketch15.setExpression("Constraints[9]", "Params.sketch15_height")
pad13 = doc.addObject("PartDesign::Pad", "Pad012")
body10.addObject(pad13)
pad13.Profile = sketch15
pad13.setExpression("Length", "Params.pad13_length")
pad13.Reversed = True

doc.recompute()
